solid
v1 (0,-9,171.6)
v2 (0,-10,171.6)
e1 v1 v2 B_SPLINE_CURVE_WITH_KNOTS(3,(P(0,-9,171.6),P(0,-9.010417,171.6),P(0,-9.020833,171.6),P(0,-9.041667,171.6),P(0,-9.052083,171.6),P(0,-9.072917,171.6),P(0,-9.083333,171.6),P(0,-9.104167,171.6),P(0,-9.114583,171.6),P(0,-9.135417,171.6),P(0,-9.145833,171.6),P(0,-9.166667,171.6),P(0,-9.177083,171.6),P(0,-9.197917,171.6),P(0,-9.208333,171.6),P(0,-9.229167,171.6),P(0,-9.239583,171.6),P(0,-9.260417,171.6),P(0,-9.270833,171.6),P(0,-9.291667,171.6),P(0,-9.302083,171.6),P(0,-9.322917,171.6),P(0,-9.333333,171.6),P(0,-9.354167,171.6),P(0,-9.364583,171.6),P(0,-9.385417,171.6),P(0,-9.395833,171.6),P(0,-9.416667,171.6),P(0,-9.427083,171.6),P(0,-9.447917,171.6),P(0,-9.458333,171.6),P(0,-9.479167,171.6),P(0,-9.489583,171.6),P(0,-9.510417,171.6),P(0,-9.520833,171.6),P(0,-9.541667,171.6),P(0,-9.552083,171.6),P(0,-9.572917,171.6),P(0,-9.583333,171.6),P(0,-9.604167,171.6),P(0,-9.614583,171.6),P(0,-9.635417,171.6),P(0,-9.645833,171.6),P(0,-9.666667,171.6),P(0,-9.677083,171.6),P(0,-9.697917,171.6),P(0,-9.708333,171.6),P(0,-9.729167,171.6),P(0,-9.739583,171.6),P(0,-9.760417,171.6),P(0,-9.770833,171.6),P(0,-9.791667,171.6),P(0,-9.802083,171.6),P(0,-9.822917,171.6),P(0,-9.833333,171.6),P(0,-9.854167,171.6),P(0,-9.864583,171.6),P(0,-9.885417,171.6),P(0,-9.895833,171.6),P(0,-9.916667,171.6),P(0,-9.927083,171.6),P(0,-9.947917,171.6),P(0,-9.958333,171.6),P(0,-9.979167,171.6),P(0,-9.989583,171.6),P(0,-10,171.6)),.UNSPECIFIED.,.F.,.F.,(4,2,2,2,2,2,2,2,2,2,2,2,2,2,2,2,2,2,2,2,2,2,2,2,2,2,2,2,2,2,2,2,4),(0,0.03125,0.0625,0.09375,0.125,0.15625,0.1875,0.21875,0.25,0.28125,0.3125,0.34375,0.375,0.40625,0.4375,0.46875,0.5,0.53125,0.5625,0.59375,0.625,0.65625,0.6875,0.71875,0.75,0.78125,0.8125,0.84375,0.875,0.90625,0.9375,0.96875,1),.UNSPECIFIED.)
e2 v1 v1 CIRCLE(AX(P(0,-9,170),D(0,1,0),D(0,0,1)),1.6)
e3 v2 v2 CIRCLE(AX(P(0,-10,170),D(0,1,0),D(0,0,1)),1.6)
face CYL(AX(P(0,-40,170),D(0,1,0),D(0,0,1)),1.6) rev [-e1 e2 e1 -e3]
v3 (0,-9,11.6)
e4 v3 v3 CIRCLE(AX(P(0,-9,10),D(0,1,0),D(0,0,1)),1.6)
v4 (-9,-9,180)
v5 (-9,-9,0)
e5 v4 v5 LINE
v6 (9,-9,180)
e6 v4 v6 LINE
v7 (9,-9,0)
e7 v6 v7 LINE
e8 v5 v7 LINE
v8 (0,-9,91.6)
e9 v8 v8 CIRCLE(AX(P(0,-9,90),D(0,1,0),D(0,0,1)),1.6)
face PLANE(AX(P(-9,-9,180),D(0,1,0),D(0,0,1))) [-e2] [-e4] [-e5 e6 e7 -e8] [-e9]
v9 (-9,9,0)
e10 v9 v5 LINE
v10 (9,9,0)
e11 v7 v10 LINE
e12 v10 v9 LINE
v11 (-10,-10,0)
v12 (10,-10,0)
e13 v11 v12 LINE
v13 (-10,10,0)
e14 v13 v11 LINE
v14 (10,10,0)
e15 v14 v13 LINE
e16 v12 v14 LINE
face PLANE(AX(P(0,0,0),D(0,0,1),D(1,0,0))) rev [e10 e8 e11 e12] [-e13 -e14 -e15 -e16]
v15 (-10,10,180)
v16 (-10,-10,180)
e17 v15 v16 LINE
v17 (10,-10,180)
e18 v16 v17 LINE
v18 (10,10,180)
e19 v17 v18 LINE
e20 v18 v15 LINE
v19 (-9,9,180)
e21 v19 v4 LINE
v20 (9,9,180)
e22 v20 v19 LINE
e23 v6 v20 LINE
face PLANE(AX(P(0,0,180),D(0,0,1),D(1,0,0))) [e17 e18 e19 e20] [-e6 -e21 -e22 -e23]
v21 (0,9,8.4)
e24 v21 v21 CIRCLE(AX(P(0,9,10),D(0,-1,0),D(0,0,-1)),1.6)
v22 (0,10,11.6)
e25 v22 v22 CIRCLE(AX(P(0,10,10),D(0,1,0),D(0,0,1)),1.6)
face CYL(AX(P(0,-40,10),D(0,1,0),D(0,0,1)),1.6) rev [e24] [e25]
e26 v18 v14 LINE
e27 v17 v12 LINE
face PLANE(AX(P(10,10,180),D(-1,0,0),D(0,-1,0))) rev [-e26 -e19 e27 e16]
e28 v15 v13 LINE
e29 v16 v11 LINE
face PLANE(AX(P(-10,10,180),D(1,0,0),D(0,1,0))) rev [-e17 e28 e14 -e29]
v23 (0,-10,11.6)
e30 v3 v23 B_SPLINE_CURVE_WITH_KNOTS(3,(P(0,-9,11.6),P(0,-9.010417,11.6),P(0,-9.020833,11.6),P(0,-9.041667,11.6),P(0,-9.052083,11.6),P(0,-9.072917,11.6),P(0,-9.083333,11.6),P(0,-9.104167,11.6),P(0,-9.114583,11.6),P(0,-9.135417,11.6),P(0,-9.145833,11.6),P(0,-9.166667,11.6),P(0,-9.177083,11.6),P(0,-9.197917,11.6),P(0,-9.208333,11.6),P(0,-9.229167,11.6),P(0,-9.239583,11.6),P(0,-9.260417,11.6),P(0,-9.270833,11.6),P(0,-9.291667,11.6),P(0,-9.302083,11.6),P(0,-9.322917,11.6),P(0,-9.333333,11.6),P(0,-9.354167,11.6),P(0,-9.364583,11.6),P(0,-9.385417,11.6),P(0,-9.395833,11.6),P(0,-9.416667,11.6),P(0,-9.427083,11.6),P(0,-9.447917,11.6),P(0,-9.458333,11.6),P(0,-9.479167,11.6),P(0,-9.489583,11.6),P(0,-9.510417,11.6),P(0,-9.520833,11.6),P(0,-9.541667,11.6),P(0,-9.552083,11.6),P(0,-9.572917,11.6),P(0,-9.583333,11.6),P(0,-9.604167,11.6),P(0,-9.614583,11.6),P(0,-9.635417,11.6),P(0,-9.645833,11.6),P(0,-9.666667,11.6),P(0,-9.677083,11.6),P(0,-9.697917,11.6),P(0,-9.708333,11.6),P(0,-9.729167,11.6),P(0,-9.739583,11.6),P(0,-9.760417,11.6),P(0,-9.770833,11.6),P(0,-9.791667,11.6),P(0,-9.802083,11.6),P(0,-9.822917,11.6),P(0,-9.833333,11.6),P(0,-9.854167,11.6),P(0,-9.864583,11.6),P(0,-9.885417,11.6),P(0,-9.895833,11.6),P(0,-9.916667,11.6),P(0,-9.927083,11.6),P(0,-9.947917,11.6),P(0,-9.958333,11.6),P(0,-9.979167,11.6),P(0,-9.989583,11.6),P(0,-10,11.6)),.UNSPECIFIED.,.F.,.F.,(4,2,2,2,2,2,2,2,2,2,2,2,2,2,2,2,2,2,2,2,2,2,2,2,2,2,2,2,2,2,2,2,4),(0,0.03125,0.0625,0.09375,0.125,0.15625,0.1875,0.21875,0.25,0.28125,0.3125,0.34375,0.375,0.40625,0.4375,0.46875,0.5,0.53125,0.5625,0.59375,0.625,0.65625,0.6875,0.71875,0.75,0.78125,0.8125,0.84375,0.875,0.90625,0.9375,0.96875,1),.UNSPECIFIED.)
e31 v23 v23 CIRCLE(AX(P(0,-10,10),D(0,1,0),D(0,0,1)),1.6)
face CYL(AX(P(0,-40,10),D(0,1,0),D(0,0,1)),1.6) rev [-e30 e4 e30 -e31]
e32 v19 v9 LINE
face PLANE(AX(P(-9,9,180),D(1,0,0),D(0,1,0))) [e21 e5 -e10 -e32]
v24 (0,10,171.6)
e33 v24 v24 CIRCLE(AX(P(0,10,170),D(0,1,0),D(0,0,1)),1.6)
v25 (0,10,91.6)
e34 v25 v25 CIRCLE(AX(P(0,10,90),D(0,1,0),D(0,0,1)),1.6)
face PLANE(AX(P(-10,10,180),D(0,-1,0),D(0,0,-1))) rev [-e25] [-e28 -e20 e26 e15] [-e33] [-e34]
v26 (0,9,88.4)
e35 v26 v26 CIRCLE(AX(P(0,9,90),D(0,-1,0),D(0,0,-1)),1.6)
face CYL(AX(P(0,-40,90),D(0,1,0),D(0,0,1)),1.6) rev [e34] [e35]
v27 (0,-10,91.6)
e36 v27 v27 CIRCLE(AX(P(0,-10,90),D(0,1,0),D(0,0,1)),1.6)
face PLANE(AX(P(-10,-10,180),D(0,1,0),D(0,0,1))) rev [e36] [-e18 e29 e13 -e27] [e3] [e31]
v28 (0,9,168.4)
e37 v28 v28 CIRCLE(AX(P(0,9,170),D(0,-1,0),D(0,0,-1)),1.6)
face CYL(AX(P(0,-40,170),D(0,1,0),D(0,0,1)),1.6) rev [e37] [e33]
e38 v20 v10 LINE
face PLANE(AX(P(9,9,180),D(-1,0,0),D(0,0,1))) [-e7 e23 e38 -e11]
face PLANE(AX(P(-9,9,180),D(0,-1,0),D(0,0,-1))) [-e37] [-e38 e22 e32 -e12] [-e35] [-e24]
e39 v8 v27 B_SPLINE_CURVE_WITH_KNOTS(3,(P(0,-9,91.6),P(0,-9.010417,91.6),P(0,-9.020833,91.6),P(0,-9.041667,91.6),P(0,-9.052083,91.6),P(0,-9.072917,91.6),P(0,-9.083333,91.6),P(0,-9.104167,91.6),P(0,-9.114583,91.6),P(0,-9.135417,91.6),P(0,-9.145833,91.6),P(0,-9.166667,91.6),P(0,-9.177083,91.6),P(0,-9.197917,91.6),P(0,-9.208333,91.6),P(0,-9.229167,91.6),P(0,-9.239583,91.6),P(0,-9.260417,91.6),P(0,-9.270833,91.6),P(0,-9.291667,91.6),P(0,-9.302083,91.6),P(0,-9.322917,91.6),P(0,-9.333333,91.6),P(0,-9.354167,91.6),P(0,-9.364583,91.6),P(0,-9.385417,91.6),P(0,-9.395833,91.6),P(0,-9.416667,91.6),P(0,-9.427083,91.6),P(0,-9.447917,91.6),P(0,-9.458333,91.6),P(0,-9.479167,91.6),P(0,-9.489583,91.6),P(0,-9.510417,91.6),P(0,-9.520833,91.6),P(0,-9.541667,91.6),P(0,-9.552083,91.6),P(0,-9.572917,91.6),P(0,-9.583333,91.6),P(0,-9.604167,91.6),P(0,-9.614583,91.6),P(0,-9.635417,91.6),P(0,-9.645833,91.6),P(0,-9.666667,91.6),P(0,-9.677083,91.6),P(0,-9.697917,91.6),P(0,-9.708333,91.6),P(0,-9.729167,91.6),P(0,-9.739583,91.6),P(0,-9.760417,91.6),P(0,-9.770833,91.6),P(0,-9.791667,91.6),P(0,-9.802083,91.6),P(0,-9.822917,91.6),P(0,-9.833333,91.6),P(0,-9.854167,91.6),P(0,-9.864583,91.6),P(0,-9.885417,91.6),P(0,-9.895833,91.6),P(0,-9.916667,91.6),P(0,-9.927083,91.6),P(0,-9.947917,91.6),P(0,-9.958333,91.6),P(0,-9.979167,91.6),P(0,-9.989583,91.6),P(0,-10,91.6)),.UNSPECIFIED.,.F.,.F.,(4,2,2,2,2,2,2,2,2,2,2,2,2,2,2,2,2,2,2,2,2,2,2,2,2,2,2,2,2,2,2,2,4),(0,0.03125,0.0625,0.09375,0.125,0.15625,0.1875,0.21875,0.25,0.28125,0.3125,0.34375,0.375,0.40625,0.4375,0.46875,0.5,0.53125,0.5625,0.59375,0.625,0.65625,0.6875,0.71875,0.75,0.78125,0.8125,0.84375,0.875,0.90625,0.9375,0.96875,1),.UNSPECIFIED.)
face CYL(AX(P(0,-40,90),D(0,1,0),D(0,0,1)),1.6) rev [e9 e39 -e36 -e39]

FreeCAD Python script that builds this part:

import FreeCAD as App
import Part
import Sketcher
from FreeCAD import Vector
Q = App.Units.Quantity


def add_polygon(sketch, points):
    """Adds a closed chain of lines whose ends are joined by coincident constraints."""
    first, n = sketch.GeometryCount, len(points)
    for a, b in zip(points, points[1:] + points[:1]):
        sketch.addGeometry(Part.LineSegment(App.Vector(*a, 0), App.Vector(*b, 0)), False)
    for i in range(n):
        sketch.addConstraint(Sketcher.Constraint("Coincident", first + i, 2, first + (i + 1) % n, 1))

doc = App.newDocument("Part")
body = doc.addObject("PartDesign::Body", "Body")

sketch1 = body.newObject("Sketcher::SketchObject", "Sketch")
sketch1.AttachmentSupport = (doc.getObject("XY_Plane"), [""])
sketch1.MapMode = "FlatFace"
add_polygon(sketch1, [(-10, 10), (-10, -10), (10, -10), (10, 10)])
add_polygon(sketch1, [(9, -9), (-9, -9), (-9, 9), (9, 9)])
sketch1.addConstraint(Sketcher.Constraint("Vertical", 0))
sketch1.addConstraint(Sketcher.Constraint("Horizontal", 1))
sketch1.addConstraint(Sketcher.Constraint("Vertical", 2))
sketch1.addConstraint(Sketcher.Constraint("Horizontal", 3))
sketch1.addConstraint(Sketcher.Constraint("Horizontal", 4))
sketch1.addConstraint(Sketcher.Constraint("Vertical", 5))
sketch1.addConstraint(Sketcher.Constraint("Horizontal", 6))
sketch1.addConstraint(Sketcher.Constraint("Vertical", 7))
sketch1.addConstraint(Sketcher.Constraint("Symmetric", 0, 2, 2, 2, -1, 1))
sketch1.addConstraint(Sketcher.Constraint("Symmetric", 4, 2, 6, 2, -1, 1))
sketch1.addConstraint(Sketcher.Constraint("Equal", 3, 0))
sketch1.addConstraint(Sketcher.Constraint("Equal", 6, 5))
sketch1.addConstraint(Sketcher.Constraint("DistanceX", 1, 1, 1, 2, Q("20 mm")))
sketch1.addConstraint(Sketcher.Constraint("DistanceX", 4, 2, 4, 1, Q("18 mm")))
pad1 = body.newObject("PartDesign::Pad", "Pad")
pad1.Profile = sketch1
pad1.Length = 180

sketch2 = body.newObject("Sketcher::SketchObject", "Sketch001")
sketch2.AttachmentSupport = (doc.getObject("XZ_Plane"), [""])
sketch2.MapMode = "FlatFace"
sketch2.AttachmentOffset = App.Placement(Vector(0, 0, -10), App.Rotation())
sketch2.addGeometry(Part.Circle(Vector(0, 90, 0), Vector(0, 0, 1), 1.6), False)
sketch2.addGeometry(Part.Circle(Vector(0, 170, 0), Vector(0, 0, 1), 1.6), False)
sketch2.addGeometry(Part.Circle(Vector(0, 10, 0), Vector(0, 0, 1), 1.6), False)
sketch2.addConstraint(Sketcher.Constraint("Equal", 0, 1))
sketch2.addConstraint(Sketcher.Constraint("Equal", 1, 2))
sketch2.addConstraint(Sketcher.Constraint("PointOnObject", 0, 3, -2))
sketch2.addConstraint(Sketcher.Constraint("PointOnObject", 1, 3, -2))
sketch2.addConstraint(Sketcher.Constraint("PointOnObject", 2, 3, -2))
sketch2.addConstraint(Sketcher.Constraint("Diameter", 0, Q("3.2 mm")))
sketch2.addConstraint(Sketcher.Constraint("DistanceY", -1, 1, 0, 3, Q("90 mm")))
sketch2.addConstraint(Sketcher.Constraint("DistanceY", -1, 1, 1, 3, Q("170 mm")))
sketch2.addConstraint(Sketcher.Constraint("DistanceY", -1, 1, 2, 3, Q("10 mm")))
pocket1 = body.newObject("PartDesign::Pocket", "Pocket")
pocket1.Profile = sketch2
pocket1.Length = 50
pocket1.Reversed = True

doc.recompute()
